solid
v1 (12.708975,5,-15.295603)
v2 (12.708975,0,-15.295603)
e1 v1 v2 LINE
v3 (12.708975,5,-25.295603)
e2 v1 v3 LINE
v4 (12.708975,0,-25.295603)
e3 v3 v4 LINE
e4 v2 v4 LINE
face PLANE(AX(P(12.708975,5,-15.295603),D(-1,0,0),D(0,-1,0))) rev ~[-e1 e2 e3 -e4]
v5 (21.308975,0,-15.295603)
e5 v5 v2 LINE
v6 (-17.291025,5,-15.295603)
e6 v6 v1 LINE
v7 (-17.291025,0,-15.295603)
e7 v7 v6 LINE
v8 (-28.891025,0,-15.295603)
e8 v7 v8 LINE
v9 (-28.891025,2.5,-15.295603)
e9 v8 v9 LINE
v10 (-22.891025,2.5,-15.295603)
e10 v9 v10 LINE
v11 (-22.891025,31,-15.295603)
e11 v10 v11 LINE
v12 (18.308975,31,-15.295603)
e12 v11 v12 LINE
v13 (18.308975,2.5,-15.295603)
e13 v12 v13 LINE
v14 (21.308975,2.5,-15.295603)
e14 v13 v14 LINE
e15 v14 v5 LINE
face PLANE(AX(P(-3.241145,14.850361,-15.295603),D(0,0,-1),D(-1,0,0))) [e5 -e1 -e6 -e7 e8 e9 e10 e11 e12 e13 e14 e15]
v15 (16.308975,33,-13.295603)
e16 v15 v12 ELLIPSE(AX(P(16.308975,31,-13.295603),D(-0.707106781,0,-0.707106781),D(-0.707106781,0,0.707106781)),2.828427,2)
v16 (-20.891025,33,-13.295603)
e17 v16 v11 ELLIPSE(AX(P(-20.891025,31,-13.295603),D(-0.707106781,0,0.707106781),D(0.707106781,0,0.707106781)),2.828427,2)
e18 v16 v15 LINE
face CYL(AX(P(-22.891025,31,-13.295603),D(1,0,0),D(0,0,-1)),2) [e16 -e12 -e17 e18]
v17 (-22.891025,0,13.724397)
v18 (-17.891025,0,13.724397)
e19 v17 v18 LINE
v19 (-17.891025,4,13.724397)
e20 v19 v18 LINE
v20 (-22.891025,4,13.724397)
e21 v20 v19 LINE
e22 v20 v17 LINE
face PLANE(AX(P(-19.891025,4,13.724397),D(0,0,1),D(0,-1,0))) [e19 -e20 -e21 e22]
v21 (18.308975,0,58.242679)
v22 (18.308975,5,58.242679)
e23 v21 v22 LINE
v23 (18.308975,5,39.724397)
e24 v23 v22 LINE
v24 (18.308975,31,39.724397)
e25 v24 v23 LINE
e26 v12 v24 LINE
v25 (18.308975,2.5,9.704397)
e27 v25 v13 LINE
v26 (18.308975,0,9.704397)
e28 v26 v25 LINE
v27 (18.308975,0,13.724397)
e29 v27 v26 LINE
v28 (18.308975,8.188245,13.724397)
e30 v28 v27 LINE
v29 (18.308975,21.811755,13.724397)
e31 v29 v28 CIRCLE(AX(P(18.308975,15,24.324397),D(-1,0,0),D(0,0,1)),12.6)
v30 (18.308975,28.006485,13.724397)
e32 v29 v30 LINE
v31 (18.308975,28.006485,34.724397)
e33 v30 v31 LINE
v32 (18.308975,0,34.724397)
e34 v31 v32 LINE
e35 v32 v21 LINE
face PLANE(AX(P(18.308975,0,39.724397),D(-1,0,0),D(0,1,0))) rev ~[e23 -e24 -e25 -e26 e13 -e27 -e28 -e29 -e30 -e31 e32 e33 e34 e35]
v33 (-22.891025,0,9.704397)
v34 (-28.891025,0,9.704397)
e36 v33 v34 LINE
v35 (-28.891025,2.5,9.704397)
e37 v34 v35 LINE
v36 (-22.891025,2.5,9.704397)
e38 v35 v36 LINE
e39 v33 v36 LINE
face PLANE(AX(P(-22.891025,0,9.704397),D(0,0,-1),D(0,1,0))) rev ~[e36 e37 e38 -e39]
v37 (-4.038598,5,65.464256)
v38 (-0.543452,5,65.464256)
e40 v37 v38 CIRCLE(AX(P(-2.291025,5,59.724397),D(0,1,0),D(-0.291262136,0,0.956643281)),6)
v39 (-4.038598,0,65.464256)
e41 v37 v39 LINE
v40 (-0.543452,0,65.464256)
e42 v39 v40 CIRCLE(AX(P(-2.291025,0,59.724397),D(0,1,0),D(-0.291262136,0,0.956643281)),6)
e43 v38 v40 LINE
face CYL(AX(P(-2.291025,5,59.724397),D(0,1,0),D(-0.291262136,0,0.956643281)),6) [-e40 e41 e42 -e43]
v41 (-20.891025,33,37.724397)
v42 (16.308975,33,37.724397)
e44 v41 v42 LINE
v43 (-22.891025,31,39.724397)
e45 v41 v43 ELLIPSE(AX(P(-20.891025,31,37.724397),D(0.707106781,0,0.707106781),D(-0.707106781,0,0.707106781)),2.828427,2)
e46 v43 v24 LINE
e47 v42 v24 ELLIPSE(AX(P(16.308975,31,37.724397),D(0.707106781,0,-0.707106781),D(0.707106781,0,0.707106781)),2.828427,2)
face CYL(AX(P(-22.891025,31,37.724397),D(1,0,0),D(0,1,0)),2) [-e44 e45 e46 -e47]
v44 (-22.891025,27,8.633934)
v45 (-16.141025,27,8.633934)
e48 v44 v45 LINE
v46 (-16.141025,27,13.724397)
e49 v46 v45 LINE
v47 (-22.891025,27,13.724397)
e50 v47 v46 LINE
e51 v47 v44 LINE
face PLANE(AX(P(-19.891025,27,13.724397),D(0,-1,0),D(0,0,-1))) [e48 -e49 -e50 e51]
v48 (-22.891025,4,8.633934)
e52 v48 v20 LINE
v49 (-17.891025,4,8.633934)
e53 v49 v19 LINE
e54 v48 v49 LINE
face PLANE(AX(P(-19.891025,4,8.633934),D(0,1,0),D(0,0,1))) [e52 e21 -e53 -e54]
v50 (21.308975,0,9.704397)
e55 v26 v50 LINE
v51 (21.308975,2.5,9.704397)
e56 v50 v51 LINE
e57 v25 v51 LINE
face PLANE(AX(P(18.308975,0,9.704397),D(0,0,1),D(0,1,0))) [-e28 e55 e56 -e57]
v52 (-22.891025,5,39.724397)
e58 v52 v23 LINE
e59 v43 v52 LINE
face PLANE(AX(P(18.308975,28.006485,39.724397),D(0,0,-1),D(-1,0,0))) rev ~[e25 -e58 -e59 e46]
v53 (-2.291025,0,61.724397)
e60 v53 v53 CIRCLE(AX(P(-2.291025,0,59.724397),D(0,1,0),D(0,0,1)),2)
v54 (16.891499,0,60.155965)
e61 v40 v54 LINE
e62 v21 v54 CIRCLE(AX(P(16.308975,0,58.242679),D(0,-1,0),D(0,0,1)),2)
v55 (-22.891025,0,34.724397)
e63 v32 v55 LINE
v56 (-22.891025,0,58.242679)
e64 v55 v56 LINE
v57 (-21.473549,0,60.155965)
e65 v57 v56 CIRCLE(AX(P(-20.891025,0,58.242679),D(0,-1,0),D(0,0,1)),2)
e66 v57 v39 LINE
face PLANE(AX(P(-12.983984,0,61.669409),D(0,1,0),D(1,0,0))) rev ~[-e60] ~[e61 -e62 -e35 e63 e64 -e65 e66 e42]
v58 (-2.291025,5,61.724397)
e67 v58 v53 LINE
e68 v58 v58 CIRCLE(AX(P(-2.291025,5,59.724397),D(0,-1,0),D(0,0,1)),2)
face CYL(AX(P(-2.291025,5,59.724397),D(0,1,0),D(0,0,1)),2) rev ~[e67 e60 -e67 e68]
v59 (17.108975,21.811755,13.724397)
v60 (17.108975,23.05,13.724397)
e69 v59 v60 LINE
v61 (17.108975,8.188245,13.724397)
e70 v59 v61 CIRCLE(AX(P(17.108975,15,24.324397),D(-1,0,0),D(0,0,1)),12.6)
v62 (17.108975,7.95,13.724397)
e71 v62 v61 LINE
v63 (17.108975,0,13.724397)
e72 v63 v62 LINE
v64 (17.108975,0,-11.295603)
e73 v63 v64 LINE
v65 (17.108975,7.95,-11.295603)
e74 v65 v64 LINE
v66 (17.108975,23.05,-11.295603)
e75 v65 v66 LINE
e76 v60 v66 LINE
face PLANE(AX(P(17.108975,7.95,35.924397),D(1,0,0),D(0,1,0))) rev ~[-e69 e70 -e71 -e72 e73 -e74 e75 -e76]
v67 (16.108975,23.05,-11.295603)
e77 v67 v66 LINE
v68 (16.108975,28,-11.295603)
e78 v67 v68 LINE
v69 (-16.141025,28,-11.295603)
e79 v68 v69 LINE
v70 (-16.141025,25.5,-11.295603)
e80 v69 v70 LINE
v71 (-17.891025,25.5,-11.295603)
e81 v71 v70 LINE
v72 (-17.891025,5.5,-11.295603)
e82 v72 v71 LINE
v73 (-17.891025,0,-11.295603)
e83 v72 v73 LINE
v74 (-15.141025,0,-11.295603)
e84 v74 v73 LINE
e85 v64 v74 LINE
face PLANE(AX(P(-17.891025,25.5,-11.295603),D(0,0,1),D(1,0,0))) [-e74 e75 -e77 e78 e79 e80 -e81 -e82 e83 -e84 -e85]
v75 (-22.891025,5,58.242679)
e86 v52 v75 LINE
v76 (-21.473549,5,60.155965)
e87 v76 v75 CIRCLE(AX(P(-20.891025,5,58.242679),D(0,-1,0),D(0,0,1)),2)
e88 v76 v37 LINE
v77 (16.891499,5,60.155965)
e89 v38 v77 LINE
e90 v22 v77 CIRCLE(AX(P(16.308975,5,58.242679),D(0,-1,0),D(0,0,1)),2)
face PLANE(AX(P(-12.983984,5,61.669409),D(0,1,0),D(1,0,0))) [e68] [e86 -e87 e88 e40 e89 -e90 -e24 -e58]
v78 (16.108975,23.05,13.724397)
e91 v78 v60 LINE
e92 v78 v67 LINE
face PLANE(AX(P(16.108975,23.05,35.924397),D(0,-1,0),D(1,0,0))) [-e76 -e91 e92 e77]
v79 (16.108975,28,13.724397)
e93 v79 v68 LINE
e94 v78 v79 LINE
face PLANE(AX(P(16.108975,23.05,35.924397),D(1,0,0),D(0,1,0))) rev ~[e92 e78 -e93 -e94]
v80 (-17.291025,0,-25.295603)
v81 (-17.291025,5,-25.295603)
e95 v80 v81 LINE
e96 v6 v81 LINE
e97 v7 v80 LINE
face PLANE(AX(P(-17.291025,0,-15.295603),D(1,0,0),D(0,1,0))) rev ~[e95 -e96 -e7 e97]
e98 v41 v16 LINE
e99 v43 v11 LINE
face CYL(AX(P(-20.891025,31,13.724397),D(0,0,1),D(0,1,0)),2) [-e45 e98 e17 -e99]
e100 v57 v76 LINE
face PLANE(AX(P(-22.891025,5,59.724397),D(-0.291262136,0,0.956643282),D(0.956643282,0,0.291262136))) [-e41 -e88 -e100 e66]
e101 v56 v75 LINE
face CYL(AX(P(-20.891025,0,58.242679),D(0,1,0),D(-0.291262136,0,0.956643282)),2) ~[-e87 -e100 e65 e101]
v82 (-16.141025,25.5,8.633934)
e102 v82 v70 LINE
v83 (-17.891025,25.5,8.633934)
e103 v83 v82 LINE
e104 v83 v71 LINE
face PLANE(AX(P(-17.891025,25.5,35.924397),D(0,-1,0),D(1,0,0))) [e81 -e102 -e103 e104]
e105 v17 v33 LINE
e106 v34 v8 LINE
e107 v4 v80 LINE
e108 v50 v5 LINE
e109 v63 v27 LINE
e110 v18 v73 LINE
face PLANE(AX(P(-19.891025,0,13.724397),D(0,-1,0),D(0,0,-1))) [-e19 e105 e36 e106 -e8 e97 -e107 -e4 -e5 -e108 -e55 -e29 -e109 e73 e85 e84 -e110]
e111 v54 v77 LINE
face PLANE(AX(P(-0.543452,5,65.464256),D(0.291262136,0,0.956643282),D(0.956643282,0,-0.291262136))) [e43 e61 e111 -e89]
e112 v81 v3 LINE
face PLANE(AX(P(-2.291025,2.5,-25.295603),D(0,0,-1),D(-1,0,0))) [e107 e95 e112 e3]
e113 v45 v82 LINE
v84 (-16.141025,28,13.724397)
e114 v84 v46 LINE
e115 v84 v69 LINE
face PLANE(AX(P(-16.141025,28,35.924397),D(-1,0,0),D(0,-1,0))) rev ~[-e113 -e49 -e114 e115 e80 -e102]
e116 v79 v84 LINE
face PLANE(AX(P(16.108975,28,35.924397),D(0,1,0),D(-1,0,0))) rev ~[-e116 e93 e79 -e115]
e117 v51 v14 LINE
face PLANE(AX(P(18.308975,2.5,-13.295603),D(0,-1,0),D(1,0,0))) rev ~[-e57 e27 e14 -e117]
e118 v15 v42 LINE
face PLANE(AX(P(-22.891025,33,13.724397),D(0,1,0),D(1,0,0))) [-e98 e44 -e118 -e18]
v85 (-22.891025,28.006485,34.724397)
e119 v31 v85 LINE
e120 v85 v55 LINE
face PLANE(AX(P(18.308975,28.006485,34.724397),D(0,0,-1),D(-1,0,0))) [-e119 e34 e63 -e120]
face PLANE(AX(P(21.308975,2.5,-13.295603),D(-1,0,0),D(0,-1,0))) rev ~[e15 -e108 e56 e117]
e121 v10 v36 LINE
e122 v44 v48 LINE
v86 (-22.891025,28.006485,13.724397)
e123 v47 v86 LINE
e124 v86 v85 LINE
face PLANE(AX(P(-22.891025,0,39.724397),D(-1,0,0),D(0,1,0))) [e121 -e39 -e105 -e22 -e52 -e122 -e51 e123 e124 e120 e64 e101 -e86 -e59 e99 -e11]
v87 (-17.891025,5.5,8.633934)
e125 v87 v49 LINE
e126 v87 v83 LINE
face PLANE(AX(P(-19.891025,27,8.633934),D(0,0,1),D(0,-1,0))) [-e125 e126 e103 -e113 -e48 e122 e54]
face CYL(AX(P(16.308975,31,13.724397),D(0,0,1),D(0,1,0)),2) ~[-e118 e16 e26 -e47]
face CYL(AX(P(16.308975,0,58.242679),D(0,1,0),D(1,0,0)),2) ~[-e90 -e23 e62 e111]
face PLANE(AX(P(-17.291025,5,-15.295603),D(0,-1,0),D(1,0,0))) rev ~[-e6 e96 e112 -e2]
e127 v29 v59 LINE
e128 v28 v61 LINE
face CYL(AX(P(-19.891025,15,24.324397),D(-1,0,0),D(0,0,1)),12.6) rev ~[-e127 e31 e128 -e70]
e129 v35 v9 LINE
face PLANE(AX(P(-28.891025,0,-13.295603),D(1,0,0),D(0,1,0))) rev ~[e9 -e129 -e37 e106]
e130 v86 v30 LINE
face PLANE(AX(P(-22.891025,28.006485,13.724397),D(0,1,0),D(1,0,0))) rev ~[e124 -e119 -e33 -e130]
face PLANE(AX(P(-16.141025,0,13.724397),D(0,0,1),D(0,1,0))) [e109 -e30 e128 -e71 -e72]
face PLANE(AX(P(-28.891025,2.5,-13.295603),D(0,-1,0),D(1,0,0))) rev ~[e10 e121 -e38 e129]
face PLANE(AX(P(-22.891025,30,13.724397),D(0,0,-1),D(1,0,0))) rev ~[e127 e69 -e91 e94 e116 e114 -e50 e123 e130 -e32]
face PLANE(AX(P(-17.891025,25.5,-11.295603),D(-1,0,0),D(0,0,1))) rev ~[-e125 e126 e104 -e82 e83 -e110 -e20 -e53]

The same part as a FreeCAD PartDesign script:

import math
import FreeCAD as App
import Part
import Sketcher

V = App.Vector
Q = App.Units.Quantity


def edges_at(feature, points):
    """Names of the edges that pass closest to the given points."""
    edges = feature.Shape.Edges
    near = lambda p: min(range(len(edges)), key=lambda i: edges[i].distToShape(Part.Vertex(*p))[0])
    return sorted({f"Edge{near(p) + 1}" for p in points})


def add_polygon(sketch, points):
    """Adds a closed chain of lines whose ends are joined by coincident constraints."""
    first, n = sketch.GeometryCount, len(points)
    for a, b in zip(points, points[1:] + points[:1]):
        sketch.addGeometry(Part.LineSegment(App.Vector(*a, 0), App.Vector(*b, 0)), False)
    for i in range(n):
        sketch.addConstraint(Sketcher.Constraint("Coincident", first + i, 2, first + (i + 1) % n, 1))

doc = App.newDocument("Part")
body = doc.addObject("PartDesign::Body", "Body")

sketch1 = doc.addObject("Sketcher::SketchObject", "Sketch")
body.addObject(sketch1)
sketch1.AttachmentSupport = (doc.XZ_Plane, [""])
sketch1.MapMode = "FlatFace"
add_polygon(sketch1, [(-20, -13), (-20, 36), (19, 36), (19, -13)])
sketch1.addConstraint(Sketcher.Constraint("Vertical", 0))
sketch1.addConstraint(Sketcher.Constraint("Horizontal", 1))
sketch1.addConstraint(Sketcher.Constraint("Vertical", 2))
sketch1.addConstraint(Sketcher.Constraint("Horizontal", 3))
sketch1.addConstraint(Sketcher.Constraint("DistanceX", 1, 1, 1, 2, Q("39 mm")))
sketch1.addConstraint(Sketcher.Constraint("DistanceY", 0, 1, 0, 2, Q("49.22 mm")))
sketch1.addConstraint(Sketcher.Constraint("DistanceX", 0, 2, -1, 1, Q("19.891025 mm")))
sketch1.addConstraint(Sketcher.Constraint("DistanceY", -1, 1, 0, 2, Q("35.924397 mm")))
pad1 = doc.addObject("PartDesign::Pad", "Pad")
body.addObject(pad1)
pad1.Profile = sketch1
pad1.Length = 30
pad1.Reversed = True

sketch2 = doc.addObject("Sketcher::SketchObject", "Sketch001")
body.addObject(sketch2)
sketch2.AttachmentSupport = (doc.XY_Plane, [""])
sketch2.MapMode = "FlatFace"
sketch2.AttachmentOffset = App.Placement(V(0, 0, 35.924397), App.Rotation())
add_polygon(sketch2, [(16.1, 28), (-16.1, 28), (-16.1, 25.5), (-17.9, 25.5), (-17.9, 5.5), (-16.1, 5.5), (-16.1, 0), (16.1, 0), (16.1, 8), (17.1, 8), (17.1, 23.1), (16.1, 23.1)])
sketch2.addConstraint(Sketcher.Constraint("Horizontal", 0))
sketch2.addConstraint(Sketcher.Constraint("Vertical", 1))
sketch2.addConstraint(Sketcher.Constraint("Horizontal", 2))
sketch2.addConstraint(Sketcher.Constraint("Vertical", 3))
sketch2.addConstraint(Sketcher.Constraint("Horizontal", 4))
sketch2.addConstraint(Sketcher.Constraint("Vertical", 5))
sketch2.addConstraint(Sketcher.Constraint("Horizontal", 6))
sketch2.addConstraint(Sketcher.Constraint("Vertical", 7))
sketch2.addConstraint(Sketcher.Constraint("Horizontal", 8))
sketch2.addConstraint(Sketcher.Constraint("Vertical", 9))
sketch2.addConstraint(Sketcher.Constraint("Horizontal", 10))
sketch2.addConstraint(Sketcher.Constraint("Vertical", 11))
sketch2.addConstraint(Sketcher.Constraint("PointOnObject", 5, 2, -1))
sketch2.addConstraint(Sketcher.Constraint("Vertical", 1, 2, 4, 2))
sketch2.addConstraint(Sketcher.Constraint("Vertical", 7, 2, 10, 2))
sketch2.addConstraint(Sketcher.Constraint("DistanceX", 8, 1, 8, 2, Q("1 mm")))
sketch2.addConstraint(Sketcher.Constraint("DistanceY", 3, 2, 3, 1, Q("20 mm")))
sketch2.addConstraint(Sketcher.Constraint("DistanceY", 1, 2, 1, 1, Q("2.5 mm")))
sketch2.addConstraint(Sketcher.Constraint("DistanceY", 5, 2, 5, 1, Q("5.5 mm")))
sketch2.addConstraint(Sketcher.Constraint("DistanceY", 9, 1, 9, 2, Q("15.1 mm")))
sketch2.addConstraint(Sketcher.Constraint("DistanceX", 3, 2, 6, 2, Q("34 mm")))
sketch2.addConstraint(Sketcher.Constraint("DistanceX", 0, 2, 0, 1, Q("32.25 mm")))
sketch2.addConstraint(Sketcher.Constraint("DistanceY", 7, 1, 7, 2, Q("7.95 mm")))
sketch2.addConstraint(Sketcher.Constraint("DistanceX", 0, 2, -1, 1, Q("16.141025 mm")))
pocket1 = doc.addObject("PartDesign::Pocket", "Pocket")
body.addObject(pocket1)
pocket1.Profile = sketch2
pocket1.Length = 47.22

sketch3 = doc.addObject("Sketcher::SketchObject", "Sketch002")
body.addObject(sketch3)
sketch3.AttachmentSupport = (doc.YZ_Plane, [""])
sketch3.MapMode = "FlatFace"
sketch3.AttachmentOffset = App.Placement(V(0, 0, -19.891025), App.Rotation())
sketch3.addGeometry(Part.Circle(V(15, 24, 0), V(0, 0, 1), 13), False)
sketch3.addConstraint(Sketcher.Constraint("Diameter", 0, Q("25.2 mm")))
sketch3.addConstraint(Sketcher.Constraint("DistanceX", -1, 1, 0, 3, Q("15 mm")))
sketch3.addConstraint(Sketcher.Constraint("DistanceY", -1, 1, 0, 3, Q("24.324397 mm")))
pocket2 = doc.addObject("PartDesign::Pocket", "Pocket001")
body.addObject(pocket2)
pocket2.Profile = sketch3
pocket2.Length = 47.22
pocket2.Reversed = True

sketch4 = doc.addObject("Sketcher::SketchObject", "Sketch003")
body.addObject(sketch4)
sketch4.AttachmentSupport = (doc.YZ_Plane, [""])
sketch4.MapMode = "FlatFace"
sketch4.AttachmentOffset = App.Placement(V(0, 0, -19.891025), App.Rotation())
sketch4.addGeometry(Part.LineSegment(V(30, 35.9, 0), V(30, 17.6, 0)), False)
sketch4.addGeometry(Part.LineSegment(V(30, 17.6, 0), V(27, 17.6, 0)), False)
sketch4.addGeometry(Part.LineSegment(V(27, 17.6, 0), V(27, 8.6, 0)), False)
sketch4.addGeometry(Part.LineSegment(V(27, 8.6, 0), V(4, 8.6, 0)), False)
sketch4.addGeometry(Part.LineSegment(V(4, 8.6, 0), V(4, 17.6, 0)), False)
sketch4.addGeometry(Part.LineSegment(V(4, 17.6, 0), V(0, 17.6, 0)), False)
sketch4.addGeometry(Part.LineSegment(V(0, 17.6, 0), V(0, 35.9, 0)), False)
sketch4.addGeometry(Part.LineSegment(V(0, 35.9, 0), V(10.1, 35.9, 0)), False)
sketch4.addGeometry(Part.ArcOfCircle(Part.Circle(V(15, 24.3, 0), V(0, 0, 1), 12.6), math.radians(113), math.radians(427)), False)
sketch4.addGeometry(Part.LineSegment(V(19.9, 35.9, 0), V(30, 35.9, 0)), False)
sketch4.addConstraint(Sketcher.Constraint("Coincident", 0, 2, 1, 1))
sketch4.addConstraint(Sketcher.Constraint("Coincident", 1, 2, 2, 1))
sketch4.addConstraint(Sketcher.Constraint("Coincident", 2, 2, 3, 1))
sketch4.addConstraint(Sketcher.Constraint("Coincident", 3, 2, 4, 1))
sketch4.addConstraint(Sketcher.Constraint("Coincident", 4, 2, 5, 1))
sketch4.addConstraint(Sketcher.Constraint("Coincident", 5, 2, 6, 1))
sketch4.addConstraint(Sketcher.Constraint("Coincident", 6, 2, 7, 1))
sketch4.addConstraint(Sketcher.Constraint("Coincident", 7, 2, 8, 1))
sketch4.addConstraint(Sketcher.Constraint("Coincident", 8, 2, 9, 1))
sketch4.addConstraint(Sketcher.Constraint("Coincident", 9, 2, 0, 1))
sketch4.addConstraint(Sketcher.Constraint("Vertical", 0))
sketch4.addConstraint(Sketcher.Constraint("Horizontal", 1))
sketch4.addConstraint(Sketcher.Constraint("Vertical", 2))
sketch4.addConstraint(Sketcher.Constraint("Horizontal", 3))
sketch4.addConstraint(Sketcher.Constraint("Vertical", 4))
sketch4.addConstraint(Sketcher.Constraint("Horizontal", 5))
sketch4.addConstraint(Sketcher.Constraint("Vertical", 6))
sketch4.addConstraint(Sketcher.Constraint("Horizontal", 7))
sketch4.addConstraint(Sketcher.Constraint("Horizontal", 9))
sketch4.addConstraint(Sketcher.Constraint("PointOnObject", 5, 2, -2))
sketch4.addConstraint(Sketcher.Constraint("Horizontal", 1, 2, 4, 2))
sketch4.addConstraint(Sketcher.Constraint("Horizontal", 7, 2, 8, 2))
sketch4.addConstraint(Sketcher.Constraint("Equal", 7, 9))
sketch4.addConstraint(Sketcher.Constraint("Radius", 8, Q("12.6 mm")))
sketch4.addConstraint(Sketcher.Constraint("DistanceX", 1, 2, 1, 1, Q("3 mm")))
sketch4.addConstraint(Sketcher.Constraint("DistanceX", 3, 2, 3, 1, Q("23 mm")))
sketch4.addConstraint(Sketcher.Constraint("DistanceX", 5, 2, 5, 1, Q("4 mm")))
sketch4.addConstraint(Sketcher.Constraint("DistanceY", 2, 2, 2, 1, Q("9 mm")))
sketch4.addConstraint(Sketcher.Constraint("DistanceY", 8, 3, 6, 2, Q("11.6 mm")))
sketch4.addConstraint(Sketcher.Constraint("DistanceY", 0, 2, 0, 1, Q("18.290463 mm")))
sketch4.addConstraint(Sketcher.Constraint("DistanceY", -1, 1, 8, 3, Q("24.324397 mm")))
pocket3 = doc.addObject("PartDesign::Pocket", "Pocket002")
body.addObject(pocket3)
pocket3.Profile = sketch4
pocket3.Length = 3.75
pocket3.Reversed = True

sketch5 = doc.addObject("Sketcher::SketchObject", "Sketch004")
body.addObject(sketch5)
sketch5.AttachmentSupport = (doc.YZ_Plane, [""])
sketch5.MapMode = "FlatFace"
sketch5.AttachmentOffset = App.Placement(V(0, 0, 19.108975), App.Rotation())
add_polygon(sketch5, [(30, 36), (0, 36), (0, 14), (30, 14)])
sketch5.addConstraint(Sketcher.Constraint("Horizontal", 0))
sketch5.addConstraint(Sketcher.Constraint("Vertical", 1))
sketch5.addConstraint(Sketcher.Constraint("Horizontal", 2))
sketch5.addConstraint(Sketcher.Constraint("Vertical", 3))
sketch5.addConstraint(Sketcher.Constraint("PointOnObject", 0, 2, -2))
sketch5.addConstraint(Sketcher.Constraint("DistanceX", 0, 2, 0, 1, Q("30 mm")))
sketch5.addConstraint(Sketcher.Constraint("DistanceY", 1, 2, 1, 1, Q("22.2 mm")))
sketch5.addConstraint(Sketcher.Constraint("DistanceY", -1, 1, 0, 2, Q("35.924397 mm")))
pocket4 = doc.addObject("PartDesign::Pocket", "Pocket003")
body.addObject(pocket4)
pocket4.Profile = sketch5
pocket4.Type = "ThroughAll"

sketch6 = doc.addObject("Sketcher::SketchObject", "Sketch005")
body.addObject(sketch6)
sketch6.AttachmentSupport = (doc.XY_Plane, [""])
sketch6.MapMode = "FlatFace"
sketch6.AttachmentOffset = App.Placement(V(0, 0, 13.724397), App.Rotation())
add_polygon(sketch6, [(18.3, 30), (18.3, 0), (19.1, 0), (19.1, 30)])
sketch6.addConstraint(Sketcher.Constraint("Vertical", 0))
sketch6.addConstraint(Sketcher.Constraint("Horizontal", 1))
sketch6.addConstraint(Sketcher.Constraint("Vertical", 2))
sketch6.addConstraint(Sketcher.Constraint("Horizontal", 3))
sketch6.addConstraint(Sketcher.Constraint("PointOnObject", 0, 2, -1))
sketch6.addConstraint(Sketcher.Constraint("DistanceY", 0, 2, 0, 1, Q("30 mm")))
sketch6.addConstraint(Sketcher.Constraint("DistanceX", 1, 1, 1, 2, Q("0.8 mm")))
sketch6.addConstraint(Sketcher.Constraint("DistanceX", -1, 1, 0, 2, Q("18.308975 mm")))
pocket5 = doc.addObject("PartDesign::Pocket", "Pocket004")
body.addObject(pocket5)
pocket5.Profile = sketch6
pocket5.Type = "ThroughAll"

sketch7 = doc.addObject("Sketcher::SketchObject", "Sketch006")
body.addObject(sketch7)
sketch7.AttachmentSupport = (doc.YZ_Plane, [""])
sketch7.MapMode = "FlatFace"
sketch7.AttachmentOffset = App.Placement(V(0, 0, 18.308975), App.Rotation())
add_polygon(sketch7, [(2.5, 9.7), (0, 9.7), (0, -13.3), (2.5, -13.3)])
sketch7.addConstraint(Sketcher.Constraint("Horizontal", 0))
sketch7.addConstraint(Sketcher.Constraint("Vertical", 1))
sketch7.addConstraint(Sketcher.Constraint("Horizontal", 2))
sketch7.addConstraint(Sketcher.Constraint("Vertical", 3))
sketch7.addConstraint(Sketcher.Constraint("PointOnObject", 0, 2, -2))
sketch7.addConstraint(Sketcher.Constraint("DistanceY", 1, 2, 1, 1, Q("23 mm")))
sketch7.addConstraint(Sketcher.Constraint("DistanceX", 0, 2, 0, 1, Q("2.5 mm")))
sketch7.addConstraint(Sketcher.Constraint("DistanceY", -1, 1, 0, 2, Q("9.704397 mm")))
pad2 = doc.addObject("PartDesign::Pad", "Pad001")
body.addObject(pad2)
pad2.Profile = sketch7
pad2.Length = 3

sketch8 = doc.addObject("Sketcher::SketchObject", "Sketch007")
body.addObject(sketch8)
sketch8.AttachmentSupport = (doc.YZ_Plane, [""])
sketch8.MapMode = "FlatFace"
sketch8.AttachmentOffset = App.Placement(V(0, 0, -19.891025), App.Rotation())
add_polygon(sketch8, [(2.5, -13.3), (0, -13.3), (0, 9.7), (2.5, 9.7)])
sketch8.addConstraint(Sketcher.Constraint("Horizontal", 0))
sketch8.addConstraint(Sketcher.Constraint("Vertical", 1))
sketch8.addConstraint(Sketcher.Constraint("Horizontal", 2))
sketch8.addConstraint(Sketcher.Constraint("Vertical", 3))
sketch8.addConstraint(Sketcher.Constraint("PointOnObject", 0, 2, -2))
sketch8.addConstraint(Sketcher.Constraint("DistanceY", 1, 1, 1, 2, Q("23 mm")))
sketch8.addConstraint(Sketcher.Constraint("DistanceX", 0, 2, 0, 1, Q("2.5 mm")))
sketch8.addConstraint(Sketcher.Constraint("DistanceY", 0, 2, -1, 1, Q("13.295603 mm")))
pad3 = doc.addObject("PartDesign::Pad", "Pad002")
body.addObject(pad3)
pad3.Profile = sketch8
pad3.Length = 3
pad3.Reversed = True

sketch9 = doc.addObject("Sketcher::SketchObject", "Sketch008")
body.addObject(sketch9)
sketch9.AttachmentSupport = (doc.YZ_Plane, [""])
sketch9.MapMode = "FlatFace"
sketch9.AttachmentOffset = App.Placement(V(0, 0, -16.141025), App.Rotation())
add_polygon(sketch9, [(3, 13.7), (0, 13.7), (0, -13.3), (3, -13.3)])
sketch9.addConstraint(Sketcher.Constraint("Horizontal", 0))
sketch9.addConstraint(Sketcher.Constraint("Vertical", 1))
sketch9.addConstraint(Sketcher.Constraint("Horizontal", 2))
sketch9.addConstraint(Sketcher.Constraint("Vertical", 3))
sketch9.addConstraint(Sketcher.Constraint("PointOnObject", 0, 2, -2))
sketch9.addConstraint(Sketcher.Constraint("DistanceX", 0, 2, 0, 1, Q("3 mm")))
sketch9.addConstraint(Sketcher.Constraint("DistanceY", 1, 2, 1, 1, Q("27.02 mm")))
sketch9.addConstraint(Sketcher.Constraint("DistanceY", -1, 1, 0, 2, Q("13.724397 mm")))
pad4 = doc.addObject("PartDesign::Pad", "Pad003")
body.addObject(pad4)
pad4.Profile = sketch9
pad4.Type = "UpToFirst"

sketch10 = doc.addObject("Sketcher::SketchObject", "Sketch009")
body.addObject(sketch10)
sketch10.AttachmentSupport = (doc.XY_Plane, [""])
sketch10.MapMode = "FlatFace"
sketch10.AttachmentOffset = App.Placement(V(0, 0, 13.724397), App.Rotation())
add_polygon(sketch10, [(-15.1, 3), (-15.1, 0), (15.1, 0), (15.1, 3)])
sketch10.addConstraint(Sketcher.Constraint("Vertical", 0))
sketch10.addConstraint(Sketcher.Constraint("Horizontal", 1))
sketch10.addConstraint(Sketcher.Constraint("Vertical", 2))
sketch10.addConstraint(Sketcher.Constraint("Horizontal", 3))
sketch10.addConstraint(Sketcher.Constraint("PointOnObject", 0, 2, -1))
sketch10.addConstraint(Sketcher.Constraint("DistanceY", 0, 2, 0, 1, Q("3 mm")))
sketch10.addConstraint(Sketcher.Constraint("DistanceX", 1, 1, 1, 2, Q("30.25 mm")))
sketch10.addConstraint(Sketcher.Constraint("DistanceX", 0, 2, -1, 1, Q("15.141025 mm")))
pocket6 = doc.addObject("PartDesign::Pocket", "Pocket005")
body.addObject(pocket6)
pocket6.Profile = sketch10
pocket6.Length = 25.02

sketch11 = doc.addObject("Sketcher::SketchObject", "Sketch010")
body.addObject(sketch11)
sketch11.AttachmentSupport = (doc.XY_Plane, [""])
sketch11.MapMode = "FlatFace"
sketch11.AttachmentOffset = App.Placement(V(0, 0, -11.295603), App.Rotation())
add_polygon(sketch11, [(-15.1, 3), (-15.1, 0), (15.1, 0), (15.1, 3)])
sketch11.addConstraint(Sketcher.Constraint("Vertical", 0))
sketch11.addConstraint(Sketcher.Constraint("Horizontal", 1))
sketch11.addConstraint(Sketcher.Constraint("Vertical", 2))
sketch11.addConstraint(Sketcher.Constraint("Horizontal", 3))
sketch11.addConstraint(Sketcher.Constraint("PointOnObject", 0, 2, -1))
sketch11.addConstraint(Sketcher.Constraint("DistanceY", 0, 2, 0, 1, Q("3 mm")))
sketch11.addConstraint(Sketcher.Constraint("DistanceX", 1, 1, 1, 2, Q("30.25 mm")))
sketch11.addConstraint(Sketcher.Constraint("DistanceX", 0, 2, -1, 1, Q("15.141025 mm")))
pocket7 = doc.addObject("PartDesign::Pocket", "Pocket006")
body.addObject(pocket7)
pocket7.Profile = sketch11
pocket7.Type = "ThroughAll"

sketch12 = doc.addObject("Sketcher::SketchObject", "Sketch011")
body.addObject(sketch12)
sketch12.AttachmentSupport = (doc.YZ_Plane, [""])
sketch12.MapMode = "FlatFace"
sketch12.AttachmentOffset = App.Placement(V(0, 0, -22.891025), App.Rotation())
add_polygon(sketch12, [(2.5, -13.3), (0, -13.3), (0, 9.7), (2.5, 9.7)])
sketch12.addConstraint(Sketcher.Constraint("Horizontal", 0))
sketch12.addConstraint(Sketcher.Constraint("Vertical", 1))
sketch12.addConstraint(Sketcher.Constraint("Horizontal", 2))
sketch12.addConstraint(Sketcher.Constraint("Vertical", 3))
sketch12.addConstraint(Sketcher.Constraint("PointOnObject", 0, 2, -2))
sketch12.addConstraint(Sketcher.Constraint("DistanceY", 1, 1, 1, 2, Q("23 mm")))
sketch12.addConstraint(Sketcher.Constraint("DistanceX", 0, 2, 0, 1, Q("2.5 mm")))
sketch12.addConstraint(Sketcher.Constraint("DistanceY", 0, 2, -1, 1, Q("13.295603 mm")))
pad5 = doc.addObject("PartDesign::Pad", "Pad004")
body.addObject(pad5)
pad5.Profile = sketch12
pad5.Length = 6
pad5.Reversed = True

sketch13 = doc.addObject("Sketcher::SketchObject", "Sketch012")
body.addObject(sketch13)
sketch13.AttachmentSupport = (doc.YZ_Plane, [""])
sketch13.MapMode = "FlatFace"
sketch13.AttachmentOffset = App.Placement(V(0, 0, -19.891025), App.Rotation())
add_polygon(sketch13, [(30, 13.7), (30, -13.3), (2.5, -13.3), (2.5, 9.7), (0, 9.7), (0, 13.7), (4, 13.7), (4, 8.6), (27, 8.6), (27, 13.7)])
sketch13.addConstraint(Sketcher.Constraint("Vertical", 0))
sketch13.addConstraint(Sketcher.Constraint("Horizontal", 1))
sketch13.addConstraint(Sketcher.Constraint("Vertical", 2))
sketch13.addConstraint(Sketcher.Constraint("Horizontal", 3))
sketch13.addConstraint(Sketcher.Constraint("Vertical", 4))
sketch13.addConstraint(Sketcher.Constraint("Horizontal", 5))
sketch13.addConstraint(Sketcher.Constraint("Vertical", 6))
sketch13.addConstraint(Sketcher.Constraint("Horizontal", 7))
sketch13.addConstraint(Sketcher.Constraint("Vertical", 8))
sketch13.addConstraint(Sketcher.Constraint("Horizontal", 9))
sketch13.addConstraint(Sketcher.Constraint("PointOnObject", 3, 2, -2))
sketch13.addConstraint(Sketcher.Constraint("Horizontal", 5, 2, 8, 2))
sketch13.addConstraint(Sketcher.Constraint("Equal", 7, 2))
sketch13.addConstraint(Sketcher.Constraint("DistanceX", 5, 1, 5, 2, Q("4 mm")))
sketch13.addConstraint(Sketcher.Constraint("DistanceX", 7, 1, 7, 2, Q("23 mm")))
sketch13.addConstraint(Sketcher.Constraint("DistanceX", 9, 1, 9, 2, Q("3 mm")))
sketch13.addConstraint(Sketcher.Constraint("DistanceX", 1, 2, 1, 1, Q("27.5 mm")))
sketch13.addConstraint(Sketcher.Constraint("DistanceY", 0, 2, 0, 1, Q("27.02 mm")))
sketch13.addConstraint(Sketcher.Constraint("DistanceY", 6, 2, 6, 1, Q("5.090463 mm")))
sketch13.addConstraint(Sketcher.Constraint("DistanceY", 0, 2, -1, 1, Q("13.295603 mm")))
pad6 = doc.addObject("PartDesign::Pad", "Pad005")
body.addObject(pad6)
pad6.Profile = sketch13
pad6.Length = 3
pad6.Reversed = True

sketch14 = doc.addObject("Sketcher::SketchObject", "Sketch013")
body.addObject(sketch14)
sketch14.AttachmentSupport = (doc.XZ_Plane, [""])
sketch14.MapMode = "FlatFace"
sketch14.AttachmentOffset = App.Placement(V(0, 0, -30), App.Rotation())
add_polygon(sketch14, [(-23, -13), (-23, 14), (18, 14), (18, -13)])
sketch14.addConstraint(Sketcher.Constraint("Vertical", 0))
sketch14.addConstraint(Sketcher.Constraint("Horizontal", 1))
sketch14.addConstraint(Sketcher.Constraint("Vertical", 2))
sketch14.addConstraint(Sketcher.Constraint("Horizontal", 3))
sketch14.addConstraint(Sketcher.Constraint("DistanceX", 1, 1, 1, 2, Q("41.2 mm")))
sketch14.addConstraint(Sketcher.Constraint("DistanceY", 0, 1, 0, 2, Q("27.02 mm")))
sketch14.addConstraint(Sketcher.Constraint("DistanceX", 0, 2, -1, 1, Q("22.891025 mm")))
sketch14.addConstraint(Sketcher.Constraint("DistanceY", -1, 1, 0, 2, Q("13.724397 mm")))
pad7 = doc.addObject("PartDesign::Pad", "Pad006")
body.addObject(pad7)
pad7.Profile = sketch14
pad7.Length = 3
pad7.Reversed = True

sketch15 = doc.addObject("Sketcher::SketchObject", "Sketch014")
body.addObject(sketch15)
sketch15.AttachmentSupport = (doc.XZ_Plane, [""])
sketch15.MapMode = "FlatFace"
sketch15.AttachmentOffset = App.Placement(V(0, 0, -25.5), App.Rotation())
add_polygon(sketch15, [(-17.9, 15.2), (-17.9, -11.3), (-13.6, -11.3), (-13.6, 15.2)])
sketch15.addConstraint(Sketcher.Constraint("Vertical", 0))
sketch15.addConstraint(Sketcher.Constraint("Horizontal", 1))
sketch15.addConstraint(Sketcher.Constraint("Vertical", 2))
sketch15.addConstraint(Sketcher.Constraint("Horizontal", 3))
sketch15.addConstraint(Sketcher.Constraint("DistanceX", 1, 2, -1, 1, Q("13.6266 mm")))
sketch15.addConstraint(Sketcher.Constraint("DistanceX", 1, 1, 1, 2, Q("4.264425 mm")))
sketch15.addConstraint(Sketcher.Constraint("DistanceY", 0, 2, 0, 1, Q("26.447817 mm")))
sketch15.addConstraint(Sketcher.Constraint("DistanceY", 0, 2, -1, 1, Q("11.295603 mm")))
pocket8 = doc.addObject("PartDesign::Pocket", "Pocket007")
body.addObject(pocket8)
pocket8.Profile = sketch15
pocket8.Type = "ThroughAll"
pocket8.Reversed = True

sketch16 = doc.addObject("Sketcher::SketchObject", "Sketch015")
body.addObject(sketch16)
sketch16.AttachmentSupport = (doc.XZ_Plane, [""])
sketch16.MapMode = "FlatFace"
sketch16.AttachmentOffset = App.Placement(V(0, 0, -23.05), App.Rotation())
add_polygon(sketch16, [(17.1, -11.3), (17.1, 22.4), (13.1, 22.4), (13.1, -11.3)])
sketch16.addConstraint(Sketcher.Constraint("Vertical", 0))
sketch16.addConstraint(Sketcher.Constraint("Horizontal", 1))
sketch16.addConstraint(Sketcher.Constraint("Vertical", 2))
sketch16.addConstraint(Sketcher.Constraint("Horizontal", 3))
sketch16.addConstraint(Sketcher.Constraint("DistanceY", 0, 1, 0, 2, Q("33.655588 mm")))
sketch16.addConstraint(Sketcher.Constraint("DistanceX", 1, 2, 1, 1, Q("3.981397 mm")))
sketch16.addConstraint(Sketcher.Constraint("DistanceX", -1, 1, 0, 2, Q("17.108975 mm")))
sketch16.addConstraint(Sketcher.Constraint("DistanceY", -1, 1, 0, 2, Q("22.359985 mm")))
pocket9 = doc.addObject("PartDesign::Pocket", "Pocket008")
body.addObject(pocket9)
pocket9.Profile = sketch16
pocket9.Type = "ThroughAll"
pocket9.Reversed = True

sketch17 = doc.addObject("Sketcher::SketchObject", "Sketch016")
body.addObject(sketch17)
sketch17.AttachmentSupport = (doc.XY_Plane, [""])
sketch17.MapMode = "FlatFace"
sketch17.AttachmentOffset = App.Placement(V(0, 0, -13.295603), App.Rotation())
add_polygon(sketch17, [(18.3, 33), (18.3, 2.5), (21.3, 2.5), (21.3, 0), (-28.9, 0), (-28.9, 2.5), (-22.9, 2.5), (-22.9, 33)])
sketch17.addConstraint(Sketcher.Constraint("Vertical", 0))
sketch17.addConstraint(Sketcher.Constraint("Horizontal", 1))
sketch17.addConstraint(Sketcher.Constraint("Vertical", 2))
sketch17.addConstraint(Sketcher.Constraint("Horizontal", 3))
sketch17.addConstraint(Sketcher.Constraint("Vertical", 4))
sketch17.addConstraint(Sketcher.Constraint("Horizontal", 5))
sketch17.addConstraint(Sketcher.Constraint("Vertical", 6))
sketch17.addConstraint(Sketcher.Constraint("Horizontal", 7))
sketch17.addConstraint(Sketcher.Constraint("PointOnObject", 2, 2, -1))
sketch17.addConstraint(Sketcher.Constraint("Horizontal", 1, 2, 4, 2))
sketch17.addConstraint(Sketcher.Constraint("DistanceX", 1, 1, 1, 2, Q("3 mm")))
sketch17.addConstraint(Sketcher.Constraint("DistanceX", 5, 1, 5, 2, Q("6 mm")))
sketch17.addConstraint(Sketcher.Constraint("DistanceX", 3, 2, 3, 1, Q("50.2 mm")))
sketch17.addConstraint(Sketcher.Constraint("DistanceY", 0, 2, 0, 1, Q("30.5 mm")))
sketch17.addConstraint(Sketcher.Constraint("DistanceY", 2, 2, 2, 1, Q("2.5 mm")))
sketch17.addConstraint(Sketcher.Constraint("DistanceX", -1, 1, 0, 2, Q("18.308975 mm")))
pad8 = doc.addObject("PartDesign::Pad", "Pad007")
body.addObject(pad8)
pad8.Profile = sketch17
pad8.Length = 2

sketch18 = doc.addObject("Sketcher::SketchObject", "Sketch017")
body.addObject(sketch18)
sketch18.AttachmentSupport = (doc.XY_Plane, [""])
sketch18.MapMode = "FlatFace"
sketch18.AttachmentOffset = App.Placement(V(0, 0, -13.295603), App.Rotation())
add_polygon(sketch18, [(18.3, 33), (18.3, 2.5), (21.3, 2.5), (21.3, 0), (-28.9, 0), (-28.9, 2.5), (-22.9, 2.5), (-22.9, 33)])
sketch18.addConstraint(Sketcher.Constraint("Vertical", 0))
sketch18.addConstraint(Sketcher.Constraint("Horizontal", 1))
sketch18.addConstraint(Sketcher.Constraint("Vertical", 2))
sketch18.addConstraint(Sketcher.Constraint("Horizontal", 3))
sketch18.addConstraint(Sketcher.Constraint("Vertical", 4))
sketch18.addConstraint(Sketcher.Constraint("Horizontal", 5))
sketch18.addConstraint(Sketcher.Constraint("Vertical", 6))
sketch18.addConstraint(Sketcher.Constraint("Horizontal", 7))
sketch18.addConstraint(Sketcher.Constraint("PointOnObject", 2, 2, -1))
sketch18.addConstraint(Sketcher.Constraint("Horizontal", 1, 2, 4, 2))
sketch18.addConstraint(Sketcher.Constraint("DistanceX", 1, 1, 1, 2, Q("3 mm")))
sketch18.addConstraint(Sketcher.Constraint("DistanceX", 5, 1, 5, 2, Q("6 mm")))
sketch18.addConstraint(Sketcher.Constraint("DistanceX", 3, 2, 3, 1, Q("50.2 mm")))
sketch18.addConstraint(Sketcher.Constraint("DistanceY", 0, 2, 0, 1, Q("30.5 mm")))
sketch18.addConstraint(Sketcher.Constraint("DistanceY", 2, 2, 2, 1, Q("2.5 mm")))
sketch18.addConstraint(Sketcher.Constraint("DistanceX", -1, 1, 0, 2, Q("18.308975 mm")))
pad9 = doc.addObject("PartDesign::Pad", "Pad008")
body.addObject(pad9)
pad9.Profile = sketch18
pad9.Length = 2
pad9.Reversed = True

sketch19 = doc.addObject("Sketcher::SketchObject", "Sketch018")
body.addObject(sketch19)
sketch19.AttachmentSupport = (doc.XY_Plane, [""])
sketch19.MapMode = "FlatFace"
sketch19.AttachmentOffset = App.Placement(V(0, 0, 13.724397), App.Rotation())
add_polygon(sketch19, [(-22.9, 33), (-22.9, 28), (18.3, 28), (18.3, 33)])
sketch19.addConstraint(Sketcher.Constraint("Vertical", 0))
sketch19.addConstraint(Sketcher.Constraint("Horizontal", 1))
sketch19.addConstraint(Sketcher.Constraint("Vertical", 2))
sketch19.addConstraint(Sketcher.Constraint("Horizontal", 3))
sketch19.addConstraint(Sketcher.Constraint("DistanceX", 1, 1, 1, 2, Q("41.2 mm")))
sketch19.addConstraint(Sketcher.Constraint("DistanceY", -1, 1, 2, 2, Q("33 mm")))
sketch19.addConstraint(Sketcher.Constraint("DistanceY", 0, 2, 0, 1, Q("4.993515 mm")))
sketch19.addConstraint(Sketcher.Constraint("DistanceX", 0, 2, -1, 1, Q("22.891025 mm")))
pad10 = doc.addObject("PartDesign::Pad", "Pad009")
body.addObject(pad10)
pad10.Profile = sketch19
pad10.Length = 26

sketch20 = doc.addObject("Sketcher::SketchObject", "Sketch019")
body.addObject(sketch20)
sketch20.AttachmentSupport = (doc.XZ_Plane, [""])
sketch20.MapMode = "FlatFace"
sketch20.AttachmentOffset = App.Placement(V(0, 0, -28.006485), App.Rotation())
add_polygon(sketch20, [(18, 35), (18, 40), (-23, 40), (-23, 35)])
sketch20.addConstraint(Sketcher.Constraint("Vertical", 0))
sketch20.addConstraint(Sketcher.Constraint("Horizontal", 1))
sketch20.addConstraint(Sketcher.Constraint("Vertical", 2))
sketch20.addConstraint(Sketcher.Constraint("Horizontal", 3))
sketch20.addConstraint(Sketcher.Constraint("DistanceY", 0, 1, 0, 2, Q("5 mm")))
sketch20.addConstraint(Sketcher.Constraint("DistanceX", 1, 2, 1, 1, Q("41.2 mm")))
sketch20.addConstraint(Sketcher.Constraint("DistanceX", -1, 1, 0, 2, Q("18.308975 mm")))
sketch20.addConstraint(Sketcher.Constraint("DistanceY", -1, 1, 0, 2, Q("39.724397 mm")))
pad11 = doc.addObject("PartDesign::Pad", "Pad010")
body.addObject(pad11)
pad11.Profile = sketch20
pad11.Length = 28.006485

sketch21 = doc.addObject("Sketcher::SketchObject", "Sketch020")
body.addObject(sketch21)
sketch21.AttachmentSupport = (doc.XY_Plane, [""])
sketch21.MapMode = "FlatFace"
sketch21.AttachmentOffset = App.Placement(V(0, 0, 39.724397), App.Rotation())
add_polygon(sketch21, [(-23, 5), (-23, 0), (18, 0), (18, 5)])
sketch21.addConstraint(Sketcher.Constraint("Vertical", 0))
sketch21.addConstraint(Sketcher.Constraint("Horizontal", 1))
sketch21.addConstraint(Sketcher.Constraint("Vertical", 2))
sketch21.addConstraint(Sketcher.Constraint("Horizontal", 3))
sketch21.addConstraint(Sketcher.Constraint("PointOnObject", 0, 2, -1))
sketch21.addConstraint(Sketcher.Constraint("DistanceY", 0, 2, 0, 1, Q("5 mm")))
sketch21.addConstraint(Sketcher.Constraint("DistanceX", 1, 1, 1, 2, Q("41.2 mm")))
sketch21.addConstraint(Sketcher.Constraint("DistanceX", 0, 2, -1, 1, Q("22.891025 mm")))
pad12 = doc.addObject("PartDesign::Pad", "Pad011")
body.addObject(pad12)
pad12.Profile = sketch21
pad12.Length = 20

sketch22 = doc.addObject("Sketcher::SketchObject", "Sketch021")
body.addObject(sketch22)
sketch22.AttachmentSupport = (doc.XZ_Plane, [""])
sketch22.MapMode = "FlatFace"
sketch22.AttachmentOffset = App.Placement(V(0, 0, -5), App.Rotation())
sketch22.addGeometry(Part.LineSegment(V(-22.9, 59.7, 0), V(-4, 65.5, 0)), False)
sketch22.addGeometry(Part.ArcOfCircle(Part.Circle(V(-2.3, 59.7, 0), V(0, 0, 1), 6), math.radians(73), math.radians(107)), False)
sketch22.addGeometry(Part.LineSegment(V(-0.5, 65.5, 0), V(18.3, 59.7, 0)), False)
sketch22.addGeometry(Part.LineSegment(V(18.3, 59.7, 0), V(3.7, 59.7, 0)), False)
sketch22.addGeometry(Part.ArcOfCircle(Part.Circle(V(-2.3, 59.7, 0), V(0, 0, 1), 6), math.radians(180), math.radians(360)), False)
sketch22.addGeometry(Part.LineSegment(V(-8.3, 59.7, 0), V(-22.9, 59.7, 0)), False)
sketch22.addGeometry(Part.Circle(V(-2.3, 59.7, 0), V(0, 0, 1), 2), False)
sketch22.addConstraint(Sketcher.Constraint("Tangent", 0, 2, 1, 2))
sketch22.addConstraint(Sketcher.Constraint("Tangent", 1, 1, 2, 1))
sketch22.addConstraint(Sketcher.Constraint("Coincident", 2, 2, 3, 1))
sketch22.addConstraint(Sketcher.Constraint("Coincident", 3, 2, 4, 2))
sketch22.addConstraint(Sketcher.Constraint("Coincident", 4, 1, 5, 1))
sketch22.addConstraint(Sketcher.Constraint("Coincident", 5, 2, 0, 1))
sketch22.addConstraint(Sketcher.Constraint("Horizontal", 3))
sketch22.addConstraint(Sketcher.Constraint("Horizontal", 5))
sketch22.addConstraint(Sketcher.Constraint("Coincident", 4, 3, 1, 3))
sketch22.addConstraint(Sketcher.Constraint("Coincident", 6, 3, 1, 3))
sketch22.addConstraint(Sketcher.Constraint("Equal", 1, 4))
sketch22.addConstraint(Sketcher.Constraint("Horizontal", 0, 2, 1, 1))
sketch22.addConstraint(Sketcher.Constraint("Horizontal", 6, 3, 2, 2))
sketch22.addConstraint(Sketcher.Constraint("Horizontal", 3, 2, 4, 1))
sketch22.addConstraint(Sketcher.Constraint("Diameter", 6, Q("4 mm")))
sketch22.addConstraint(Sketcher.Constraint("Radius", 1, Q("6 mm")))
sketch22.addConstraint(Sketcher.Constraint("DistanceX", 3, 2, 3, 1, Q("14.6 mm")))
sketch22.addConstraint(Sketcher.Constraint("DistanceX", 1, 3, -1, 1, Q("2.291025 mm")))
sketch22.addConstraint(Sketcher.Constraint("DistanceY", -1, 1, 1, 3, Q("59.724397 mm")))
pad13 = doc.addObject("PartDesign::Pad", "Pad012")
body.addObject(pad13)
pad13.Profile = sketch22
pad13.Length = 5

sketch23 = doc.addObject("Sketcher::SketchObject", "Sketch022")
body.addObject(sketch23)
sketch23.AttachmentSupport = (doc.XZ_Plane, [""])
sketch23.MapMode = "FlatFace"
sketch23.AttachmentOffset = App.Placement(V(0, 0, -5), App.Rotation())
sketch23.addGeometry(Part.Circle(V(-2.3, 59.7, 0), V(0, 0, 1), 2), False)
sketch23.addConstraint(Sketcher.Constraint("Diameter", 0, Q("4 mm")))
sketch23.addConstraint(Sketcher.Constraint("DistanceX", 0, 3, -1, 1, Q("2.291025 mm")))
sketch23.addConstraint(Sketcher.Constraint("DistanceY", -1, 1, 0, 3, Q("59.724397 mm")))
pocket10 = doc.addObject("PartDesign::Pocket", "Pocket009")
body.addObject(pocket10)
pocket10.Profile = sketch23
pocket10.Type = "ThroughAll"
pocket10.Reversed = True
doc.recompute()

fillet = doc.addObject("PartDesign::Fillet", "Fillet")
body.addObject(fillet)
fillet.Base = (pocket10, edges_at(pocket10, [
    (-22.891, 33, -0.786),
    (18.309, 33, -0.786),
    (-2.291, 33, -15.296),
    (-2.291, 33, 39.724),
    (-22.891, 2.5, 59.724),
    (18.309, 2.5, 59.724),
]))
fillet.Radius = 2

sketch24 = doc.addObject("Sketcher::SketchObject", "Sketch023")
body.addObject(sketch24)
sketch24.AttachmentSupport = (doc.XY_Plane, [""])
sketch24.MapMode = "FlatFace"
sketch24.AttachmentOffset = App.Placement(V(0, 0, -15.295603), App.Rotation())
add_polygon(sketch24, [(-17, 5), (13, 5), (13, 0), (-17, 0)])
sketch24.addConstraint(Sketcher.Constraint("Horizontal", 0))
sketch24.addConstraint(Sketcher.Constraint("Vertical", 1))
sketch24.addConstraint(Sketcher.Constraint("Horizontal", 2))
sketch24.addConstraint(Sketcher.Constraint("Vertical", 3))
sketch24.addConstraint(Sketcher.Constraint("PointOnObject", 1, 2, -1))
sketch24.addConstraint(Sketcher.Constraint("DistanceX", 0, 1, 0, 2, Q("30 mm")))
sketch24.addConstraint(Sketcher.Constraint("DistanceY", 1, 2, 1, 1, Q("5 mm")))
sketch24.addConstraint(Sketcher.Constraint("DistanceX", -1, 1, 0, 2, Q("12.708975 mm")))
pad14 = doc.addObject("PartDesign::Pad", "Pad013")
body.addObject(pad14)
pad14.Profile = sketch24
pad14.Length = 10
pad14.Reversed = True

doc.recompute()
